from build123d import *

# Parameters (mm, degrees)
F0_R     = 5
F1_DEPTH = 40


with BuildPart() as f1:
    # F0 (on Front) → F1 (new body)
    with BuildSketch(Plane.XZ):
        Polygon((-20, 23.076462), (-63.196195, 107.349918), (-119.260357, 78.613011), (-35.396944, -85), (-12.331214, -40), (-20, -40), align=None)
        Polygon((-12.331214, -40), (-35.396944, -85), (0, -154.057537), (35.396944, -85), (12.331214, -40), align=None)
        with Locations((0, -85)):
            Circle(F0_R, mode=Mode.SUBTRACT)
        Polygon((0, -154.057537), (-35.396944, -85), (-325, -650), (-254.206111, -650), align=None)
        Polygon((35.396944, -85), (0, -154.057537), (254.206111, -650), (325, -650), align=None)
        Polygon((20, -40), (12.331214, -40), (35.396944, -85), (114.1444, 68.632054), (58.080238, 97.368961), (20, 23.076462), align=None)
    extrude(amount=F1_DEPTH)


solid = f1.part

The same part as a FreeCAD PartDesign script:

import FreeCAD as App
import Part
import Sketcher

V = App.Vector

doc = App.newDocument("Part")
body = doc.addObject("PartDesign::Body", "Body")

sketch1 = body.newObject("Sketcher::SketchObject", "Sketch")
sketch1.AttachmentSupport = (doc.getObject("XZ_Plane"), [""])
sketch1.MapMode = "FlatFace"
sketch1.addGeometry([
    Part.LineSegment(V(-20, 23.076462, 0), V(-63.196195, 107.349918, 0)),
    Part.LineSegment(V(-63.196195, 107.349918, 0), V(-119.260357, 78.613011, 0)),
    Part.LineSegment(V(-119.260357, 78.613011, 0), V(-35.396944, -85, 0)),
    Part.LineSegment(V(-35.396944, -85, 0), V(-325, -650, 0)),
    Part.LineSegment(V(-325, -650, 0), V(-254.206111, -650, 0)),
    Part.LineSegment(V(-254.206111, -650, 0), V(0, -154.057537, 0)),
    Part.LineSegment(V(0, -154.057537, 0), V(254.206111, -650, 0)),
    Part.LineSegment(V(254.206111, -650, 0), V(325, -650, 0)),
    Part.LineSegment(V(325, -650, 0), V(35.396944, -85, 0)),
    Part.LineSegment(V(35.396944, -85, 0), V(114.1444, 68.632054, 0)),
    Part.LineSegment(V(114.1444, 68.632054, 0), V(58.080238, 97.368961, 0)),
    Part.LineSegment(V(58.080238, 97.368961, 0), V(20, 23.076462, 0)),
    Part.LineSegment(V(20, 23.076462, 0), V(20, -40, 0)),
    Part.LineSegment(V(20, -40, 0), V(-20, -40, 0)),
    Part.LineSegment(V(-20, -40, 0), V(-20, 23.076462, 0)),
    Part.Circle(V(0, -85, 0), V(0, 0, 1), 5),
], False)
sketch1.addConstraint([
    Sketcher.Constraint("Coincident", 0, 2, 1, 1),
    Sketcher.Constraint("Coincident", 1, 2, 2, 1),
    Sketcher.Constraint("Coincident", 2, 2, 3, 1),
    Sketcher.Constraint("Coincident", 3, 2, 4, 1),
    Sketcher.Constraint("Coincident", 4, 2, 5, 1),
    Sketcher.Constraint("Coincident", 5, 2, 6, 1),
    Sketcher.Constraint("Coincident", 6, 2, 7, 1),
    Sketcher.Constraint("Coincident", 7, 2, 8, 1),
    Sketcher.Constraint("Coincident", 8, 2, 9, 1),
    Sketcher.Constraint("Coincident", 9, 2, 10, 1),
    Sketcher.Constraint("Coincident", 10, 2, 11, 1),
    Sketcher.Constraint("Coincident", 11, 2, 12, 1),
    Sketcher.Constraint("Coincident", 12, 2, 13, 1),
    Sketcher.Constraint("Coincident", 13, 2, 14, 1),
    Sketcher.Constraint("Coincident", 14, 2, 0, 1),
    Sketcher.Constraint("Horizontal", 4),
    Sketcher.Constraint("Horizontal", 7),
    Sketcher.Constraint("Vertical", 12),
    Sketcher.Constraint("Horizontal", 13),
    Sketcher.Constraint("Vertical", 14),
    Sketcher.Constraint("PointOnObject", 15, 3, -2),
    Sketcher.Constraint("PointOnObject", 5, 2, -2),
    Sketcher.Constraint("Diameter", 15, 10.0),
    Sketcher.Constraint("DistanceX", 13, 2, 13, 1, 40.0),
    Sketcher.Constraint("Distance", 1, 63.000001),
    Sketcher.Constraint("Distance", 10, 63.000001),
    Sketcher.Constraint("DistanceY", 15, 3, -1, 1, 85.0),
    Sketcher.Constraint("DistanceY", 2, 2, -1, 1, 85.0),
    Sketcher.Constraint("DistanceX", 3, 2, -1, 1, 325.0),
    Sketcher.Constraint("DistanceY", 3, 2, -1, 1, 650.0),
    Sketcher.Constraint("DistanceY", 6, 2, -1, 1, 650.0),
    Sketcher.Constraint("DistanceX", -1, 1, 7, 2, 325.0),
    Sketcher.Constraint("DistanceY", 8, 2, -1, 1, 85.0),
    Sketcher.Constraint("DistanceX", -1, 1, 11, 2, 20.0),
    Sketcher.Constraint("DistanceY", 12, 2, -1, 1, 40.0),
    Sketcher.Constraint("DistanceX", 4, 1, 4, 2, 70.793889),
    Sketcher.Constraint("DistanceX", 7, 1, 7, 2, 70.793889),
    Sketcher.Constraint("DistanceX", -1, 1, 9, 2, 114.1444),
    Sketcher.Constraint("DistanceX", 1, 2, 8, 2, 154.657301),
    Sketcher.Constraint("DistanceY", 11, 2, 10, 2, 74.292499),
    Sketcher.Constraint("DistanceY", 14, 2, 10, 2, 74.292499),
    Sketcher.Constraint("Distance", 2, 183.853989),
    Sketcher.Constraint("Distance", 11, 83.483411),
    Sketcher.Constraint("DistanceY", 12, 2, 12, 1, 63.076462),
    Sketcher.Constraint("DistanceY", -1, 1, 0, 2, 107.349918),
    Sketcher.Constraint("DistanceY", -1, 1, 1, 2, 78.613011),
    Sketcher.Constraint("DistanceY", 5, 2, 1, 2, 232.670548),
    Sketcher.Constraint("Distance", 0, 94.699138),
])
pad1 = body.newObject("PartDesign::Pad", "Pad")
pad1.Profile = sketch1
pad1.Length = 40

doc.recompute()
